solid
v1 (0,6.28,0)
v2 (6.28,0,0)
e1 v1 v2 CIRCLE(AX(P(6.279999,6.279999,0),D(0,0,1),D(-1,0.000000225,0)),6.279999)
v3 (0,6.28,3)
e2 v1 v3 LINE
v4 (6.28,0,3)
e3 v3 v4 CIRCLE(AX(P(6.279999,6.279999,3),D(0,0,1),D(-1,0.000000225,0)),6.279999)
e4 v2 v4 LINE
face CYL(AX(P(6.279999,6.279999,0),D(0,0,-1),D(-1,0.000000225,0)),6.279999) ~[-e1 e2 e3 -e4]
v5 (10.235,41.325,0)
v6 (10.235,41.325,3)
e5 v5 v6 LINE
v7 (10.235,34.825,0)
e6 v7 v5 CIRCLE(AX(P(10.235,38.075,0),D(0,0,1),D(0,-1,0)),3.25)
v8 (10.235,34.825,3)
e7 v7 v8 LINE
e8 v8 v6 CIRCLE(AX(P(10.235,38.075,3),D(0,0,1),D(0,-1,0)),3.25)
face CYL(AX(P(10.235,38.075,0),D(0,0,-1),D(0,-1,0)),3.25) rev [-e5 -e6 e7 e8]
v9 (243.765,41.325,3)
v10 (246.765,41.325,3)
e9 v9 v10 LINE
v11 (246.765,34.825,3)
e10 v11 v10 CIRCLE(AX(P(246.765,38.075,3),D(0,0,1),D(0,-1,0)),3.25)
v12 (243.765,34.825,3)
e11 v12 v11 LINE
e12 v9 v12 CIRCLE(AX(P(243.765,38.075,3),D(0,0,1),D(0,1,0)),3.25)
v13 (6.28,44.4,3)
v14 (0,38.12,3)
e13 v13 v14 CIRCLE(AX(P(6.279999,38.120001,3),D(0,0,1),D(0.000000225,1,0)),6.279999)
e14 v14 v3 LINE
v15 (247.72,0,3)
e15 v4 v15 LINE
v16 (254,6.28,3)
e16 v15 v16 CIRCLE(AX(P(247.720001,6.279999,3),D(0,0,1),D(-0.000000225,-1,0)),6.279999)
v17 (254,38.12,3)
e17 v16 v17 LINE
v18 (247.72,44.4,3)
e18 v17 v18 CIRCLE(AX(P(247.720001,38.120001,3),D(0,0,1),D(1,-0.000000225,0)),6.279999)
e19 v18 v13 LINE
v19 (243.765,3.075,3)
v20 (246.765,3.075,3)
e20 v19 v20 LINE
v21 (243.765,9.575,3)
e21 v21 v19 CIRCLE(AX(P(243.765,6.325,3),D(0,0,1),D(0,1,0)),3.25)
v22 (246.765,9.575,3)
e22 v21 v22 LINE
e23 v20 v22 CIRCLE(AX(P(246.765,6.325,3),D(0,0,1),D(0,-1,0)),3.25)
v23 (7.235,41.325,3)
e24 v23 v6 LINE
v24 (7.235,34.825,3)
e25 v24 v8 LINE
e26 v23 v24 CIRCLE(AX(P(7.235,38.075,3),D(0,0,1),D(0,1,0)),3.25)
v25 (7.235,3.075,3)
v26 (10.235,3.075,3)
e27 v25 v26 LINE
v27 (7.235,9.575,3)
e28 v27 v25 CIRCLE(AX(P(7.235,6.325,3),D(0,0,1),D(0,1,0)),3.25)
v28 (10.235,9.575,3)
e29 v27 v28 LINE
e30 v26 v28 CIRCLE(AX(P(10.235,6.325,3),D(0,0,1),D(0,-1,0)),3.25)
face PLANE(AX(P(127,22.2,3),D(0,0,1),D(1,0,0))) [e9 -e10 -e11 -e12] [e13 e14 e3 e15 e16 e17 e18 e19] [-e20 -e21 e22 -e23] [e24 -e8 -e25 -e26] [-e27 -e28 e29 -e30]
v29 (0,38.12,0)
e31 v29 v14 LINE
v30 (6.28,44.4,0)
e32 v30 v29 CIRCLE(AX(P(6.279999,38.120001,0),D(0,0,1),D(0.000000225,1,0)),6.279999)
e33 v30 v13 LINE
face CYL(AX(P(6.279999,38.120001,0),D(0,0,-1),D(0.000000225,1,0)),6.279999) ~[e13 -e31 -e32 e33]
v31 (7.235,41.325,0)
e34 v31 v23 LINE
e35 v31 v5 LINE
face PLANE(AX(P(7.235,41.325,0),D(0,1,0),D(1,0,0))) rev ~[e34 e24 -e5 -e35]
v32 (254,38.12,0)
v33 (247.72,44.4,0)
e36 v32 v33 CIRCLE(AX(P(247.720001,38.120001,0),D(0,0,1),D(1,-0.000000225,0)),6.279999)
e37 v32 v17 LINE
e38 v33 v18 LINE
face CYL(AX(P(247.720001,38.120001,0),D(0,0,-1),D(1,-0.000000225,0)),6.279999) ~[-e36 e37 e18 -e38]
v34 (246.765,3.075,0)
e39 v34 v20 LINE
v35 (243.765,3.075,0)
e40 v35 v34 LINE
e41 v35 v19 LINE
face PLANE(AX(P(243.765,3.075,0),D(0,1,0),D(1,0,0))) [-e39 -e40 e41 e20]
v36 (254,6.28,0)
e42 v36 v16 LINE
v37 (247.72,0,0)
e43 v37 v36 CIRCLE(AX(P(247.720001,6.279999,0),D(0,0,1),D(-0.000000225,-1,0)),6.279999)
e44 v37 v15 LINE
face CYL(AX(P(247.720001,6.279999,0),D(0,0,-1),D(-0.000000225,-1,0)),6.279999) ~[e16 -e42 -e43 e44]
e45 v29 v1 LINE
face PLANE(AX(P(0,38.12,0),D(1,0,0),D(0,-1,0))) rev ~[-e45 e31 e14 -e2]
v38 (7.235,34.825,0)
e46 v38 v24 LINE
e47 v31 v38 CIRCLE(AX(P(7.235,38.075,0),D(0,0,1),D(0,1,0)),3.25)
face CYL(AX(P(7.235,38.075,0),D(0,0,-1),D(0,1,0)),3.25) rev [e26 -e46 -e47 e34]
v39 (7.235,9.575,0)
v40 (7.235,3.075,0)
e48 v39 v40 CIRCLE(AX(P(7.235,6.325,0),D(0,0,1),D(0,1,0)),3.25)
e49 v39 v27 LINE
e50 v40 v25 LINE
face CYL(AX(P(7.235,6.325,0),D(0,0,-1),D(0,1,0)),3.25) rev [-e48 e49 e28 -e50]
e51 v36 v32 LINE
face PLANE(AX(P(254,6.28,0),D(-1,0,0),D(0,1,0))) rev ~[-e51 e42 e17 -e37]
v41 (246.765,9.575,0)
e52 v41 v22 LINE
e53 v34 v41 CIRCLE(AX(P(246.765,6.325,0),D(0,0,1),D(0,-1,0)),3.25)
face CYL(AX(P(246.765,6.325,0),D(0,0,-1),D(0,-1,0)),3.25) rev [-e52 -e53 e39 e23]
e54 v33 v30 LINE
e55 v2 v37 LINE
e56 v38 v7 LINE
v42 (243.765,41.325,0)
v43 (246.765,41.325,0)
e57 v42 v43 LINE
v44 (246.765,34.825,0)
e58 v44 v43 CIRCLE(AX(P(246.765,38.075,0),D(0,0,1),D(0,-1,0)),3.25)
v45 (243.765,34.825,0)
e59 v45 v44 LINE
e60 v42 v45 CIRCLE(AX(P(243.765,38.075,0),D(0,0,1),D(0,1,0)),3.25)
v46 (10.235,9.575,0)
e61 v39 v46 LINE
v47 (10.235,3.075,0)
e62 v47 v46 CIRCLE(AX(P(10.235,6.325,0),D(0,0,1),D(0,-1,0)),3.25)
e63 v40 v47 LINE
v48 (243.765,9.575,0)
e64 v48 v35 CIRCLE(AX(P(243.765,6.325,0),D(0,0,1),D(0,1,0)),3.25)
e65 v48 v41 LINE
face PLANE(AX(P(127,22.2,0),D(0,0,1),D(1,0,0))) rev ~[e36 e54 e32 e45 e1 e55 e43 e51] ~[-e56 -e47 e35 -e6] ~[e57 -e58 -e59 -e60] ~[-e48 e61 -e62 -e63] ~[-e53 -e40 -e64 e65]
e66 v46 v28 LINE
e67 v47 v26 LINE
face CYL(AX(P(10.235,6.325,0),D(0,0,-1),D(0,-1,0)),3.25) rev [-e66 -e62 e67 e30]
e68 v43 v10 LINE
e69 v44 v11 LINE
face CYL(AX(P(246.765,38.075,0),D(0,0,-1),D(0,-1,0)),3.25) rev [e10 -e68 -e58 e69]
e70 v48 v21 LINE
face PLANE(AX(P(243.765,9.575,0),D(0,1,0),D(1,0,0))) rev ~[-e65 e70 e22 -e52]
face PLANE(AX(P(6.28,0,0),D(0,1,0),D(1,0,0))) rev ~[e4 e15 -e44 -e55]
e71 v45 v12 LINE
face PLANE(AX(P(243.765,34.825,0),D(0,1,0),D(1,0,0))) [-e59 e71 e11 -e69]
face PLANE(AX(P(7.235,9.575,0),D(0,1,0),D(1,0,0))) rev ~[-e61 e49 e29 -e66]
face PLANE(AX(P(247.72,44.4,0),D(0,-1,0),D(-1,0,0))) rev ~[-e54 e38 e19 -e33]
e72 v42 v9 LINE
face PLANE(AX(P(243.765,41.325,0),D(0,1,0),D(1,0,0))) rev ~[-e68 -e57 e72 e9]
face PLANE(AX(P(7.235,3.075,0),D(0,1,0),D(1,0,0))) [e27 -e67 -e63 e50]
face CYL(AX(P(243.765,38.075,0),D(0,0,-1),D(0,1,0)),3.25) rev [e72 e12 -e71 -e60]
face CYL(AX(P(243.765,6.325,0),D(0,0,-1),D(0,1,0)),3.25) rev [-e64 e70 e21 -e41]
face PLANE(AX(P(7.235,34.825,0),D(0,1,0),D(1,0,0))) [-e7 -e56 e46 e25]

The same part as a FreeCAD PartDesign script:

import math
import FreeCAD as App
import Part
import Sketcher
from FreeCAD import Vector
Q = App.Units.Quantity

doc = App.newDocument("Part")
params = doc.addObject("Spreadsheet::Sheet", "Params")
for row, (alias, value) in enumerate([
    ("sketch1_width", "3 mm"),
    ("sketch1_radius", "6.279999 mm"),
    ("sketch1_radius2", "3.25 mm"),
    ("sketch1_height", "31.84 mm"),
    ("pad1_length", "3 mm"),
], start=1):
    params.set(f"A{row}", alias)
    params.set(f"B{row}", "=" + value)
    params.setAlias(f"B{row}", alias)

body = doc.addObject("PartDesign::Body", "Body")

# Sketch on XY plane
sketch1 = body.newObject("Sketcher::SketchObject", "Sketch")
sketch1.AttachmentSupport = (doc.getObject("XY_Plane"), [""])
sketch1.MapMode = "FlatFace"
sketch1.addGeometry(Part.LineSegment(Vector(6.3, 0, 0), Vector(247.7, 0, 0)), False)
sketch1.addGeometry(Part.ArcOfCircle(Part.Circle(Vector(247.7, 6.3, 0), Vector(0, 0, 1), 6.3), math.radians(-90), math.radians(0)), False)
sketch1.addGeometry(Part.LineSegment(Vector(254, 6.3, 0), Vector(254, 38.1, 0)), False)
sketch1.addGeometry(Part.ArcOfCircle(Part.Circle(Vector(247.7, 38.1, 0), Vector(0, 0, 1), 6.3), math.radians(0), math.radians(90)), False)
sketch1.addGeometry(Part.LineSegment(Vector(247.7, 44.4, 0), Vector(6.3, 44.4, 0)), False)
sketch1.addGeometry(Part.ArcOfCircle(Part.Circle(Vector(6.3, 38.1, 0), Vector(0, 0, 1), 6.3), math.radians(90), math.radians(180)), False)
sketch1.addGeometry(Part.LineSegment(Vector(0, 38.1, 0), Vector(0, 6.3, 0)), False)
sketch1.addGeometry(Part.ArcOfCircle(Part.Circle(Vector(6.3, 6.3, 0), Vector(0, 0, 1), 6.3), math.radians(180), math.radians(270)), False)
sketch1.addGeometry(Part.ArcOfCircle(Part.Circle(Vector(7.2, 6.3, 0), Vector(0, 0, 1), 3.2), math.radians(90), math.radians(270)), False)
sketch1.addGeometry(Part.LineSegment(Vector(7.2, 9.6, 0), Vector(10.2, 9.6, 0)), False)
sketch1.addGeometry(Part.ArcOfCircle(Part.Circle(Vector(10.2, 6.3, 0), Vector(0, 0, 1), 3.2), math.radians(-90), math.radians(90)), False)
sketch1.addGeometry(Part.LineSegment(Vector(10.2, 3.1, 0), Vector(7.2, 3.1, 0)), False)
sketch1.addGeometry(Part.ArcOfCircle(Part.Circle(Vector(243.8, 6.3, 0), Vector(0, 0, 1), 3.2), math.radians(90), math.radians(270)), False)
sketch1.addGeometry(Part.LineSegment(Vector(243.8, 9.6, 0), Vector(246.8, 9.6, 0)), False)
sketch1.addGeometry(Part.ArcOfCircle(Part.Circle(Vector(246.8, 6.3, 0), Vector(0, 0, 1), 3.2), math.radians(-90), math.radians(90)), False)
sketch1.addGeometry(Part.LineSegment(Vector(246.8, 3.1, 0), Vector(243.8, 3.1, 0)), False)
sketch1.addGeometry(Part.ArcOfCircle(Part.Circle(Vector(7.2, 38.1, 0), Vector(0, 0, 1), 3.2), math.radians(90), math.radians(270)), False)
sketch1.addGeometry(Part.LineSegment(Vector(7.2, 41.3, 0), Vector(10.2, 41.3, 0)), False)
sketch1.addGeometry(Part.ArcOfCircle(Part.Circle(Vector(10.2, 38.1, 0), Vector(0, 0, 1), 3.2), math.radians(-90), math.radians(90)), False)
sketch1.addGeometry(Part.LineSegment(Vector(10.2, 34.8, 0), Vector(7.2, 34.8, 0)), False)
sketch1.addGeometry(Part.ArcOfCircle(Part.Circle(Vector(243.8, 38.1, 0), Vector(0, 0, 1), 3.2), math.radians(90), math.radians(270)), False)
sketch1.addGeometry(Part.LineSegment(Vector(243.8, 41.3, 0), Vector(246.8, 41.3, 0)), False)
sketch1.addGeometry(Part.ArcOfCircle(Part.Circle(Vector(246.8, 38.1, 0), Vector(0, 0, 1), 3.2), math.radians(-90), math.radians(90)), False)
sketch1.addGeometry(Part.LineSegment(Vector(246.8, 34.8, 0), Vector(243.8, 34.8, 0)), False)
sketch1.addConstraint(Sketcher.Constraint("Tangent", 0, 2, 1, 1))
sketch1.addConstraint(Sketcher.Constraint("Tangent", 1, 2, 2, 1))
sketch1.addConstraint(Sketcher.Constraint("Tangent", 2, 2, 3, 1))
sketch1.addConstraint(Sketcher.Constraint("Tangent", 3, 2, 4, 1))
sketch1.addConstraint(Sketcher.Constraint("Tangent", 4, 2, 5, 1))
sketch1.addConstraint(Sketcher.Constraint("Tangent", 5, 2, 6, 1))
sketch1.addConstraint(Sketcher.Constraint("Tangent", 6, 2, 7, 1))
sketch1.addConstraint(Sketcher.Constraint("Tangent", 7, 2, 0, 1))
sketch1.addConstraint(Sketcher.Constraint("Tangent", 8, 1, 9, 1))
sketch1.addConstraint(Sketcher.Constraint("Tangent", 9, 2, 10, 2))
sketch1.addConstraint(Sketcher.Constraint("Tangent", 10, 1, 11, 1))
sketch1.addConstraint(Sketcher.Constraint("Tangent", 11, 2, 8, 2))
sketch1.addConstraint(Sketcher.Constraint("Tangent", 12, 1, 13, 1))
sketch1.addConstraint(Sketcher.Constraint("Tangent", 13, 2, 14, 2))
sketch1.addConstraint(Sketcher.Constraint("Tangent", 14, 1, 15, 1))
sketch1.addConstraint(Sketcher.Constraint("Tangent", 15, 2, 12, 2))
sketch1.addConstraint(Sketcher.Constraint("Tangent", 16, 1, 17, 1))
sketch1.addConstraint(Sketcher.Constraint("Tangent", 17, 2, 18, 2))
sketch1.addConstraint(Sketcher.Constraint("Tangent", 18, 1, 19, 1))
sketch1.addConstraint(Sketcher.Constraint("Tangent", 19, 2, 16, 2))
sketch1.addConstraint(Sketcher.Constraint("Tangent", 20, 1, 21, 1))
sketch1.addConstraint(Sketcher.Constraint("Tangent", 21, 2, 22, 2))
sketch1.addConstraint(Sketcher.Constraint("Tangent", 22, 1, 23, 1))
sketch1.addConstraint(Sketcher.Constraint("Tangent", 23, 2, 20, 2))
sketch1.addConstraint(Sketcher.Constraint("Horizontal", 0))
sketch1.addConstraint(Sketcher.Constraint("Vertical", 2))
sketch1.addConstraint(Sketcher.Constraint("Horizontal", 4))
sketch1.addConstraint(Sketcher.Constraint("Vertical", 6))
sketch1.addConstraint(Sketcher.Constraint("Horizontal", 9))
sketch1.addConstraint(Sketcher.Constraint("Horizontal", 11))
sketch1.addConstraint(Sketcher.Constraint("Horizontal", 13))
sketch1.addConstraint(Sketcher.Constraint("Horizontal", 15))
sketch1.addConstraint(Sketcher.Constraint("Horizontal", 17))
sketch1.addConstraint(Sketcher.Constraint("Horizontal", 19))
sketch1.addConstraint(Sketcher.Constraint("Horizontal", 21))
sketch1.addConstraint(Sketcher.Constraint("Horizontal", 23))
sketch1.addConstraint(Sketcher.Constraint("Equal", 1, 3))
sketch1.addConstraint(Sketcher.Constraint("Equal", 3, 5))
sketch1.addConstraint(Sketcher.Constraint("Equal", 5, 7))
sketch1.addConstraint(Sketcher.Constraint("Equal", 10, 12))
sketch1.addConstraint(Sketcher.Constraint("Equal", 14, 16))
sketch1.addConstraint(Sketcher.Constraint("Equal", 18, 20))
sketch1.addConstraint(Sketcher.Constraint("PointOnObject", 0, 2, -1))
sketch1.addConstraint(Sketcher.Constraint("PointOnObject", 5, 2, -2))
sketch1.addConstraint(Sketcher.Constraint("Horizontal", 10, 3, 12, 3))
sketch1.addConstraint(Sketcher.Constraint("Horizontal", 18, 3, 20, 3))
sketch1.addConstraint(Sketcher.Constraint("Vertical", 8, 3, 16, 3))
sketch1.addConstraint(Sketcher.Constraint("Vertical", 10, 3, 18, 3))
sketch1.addConstraint(Sketcher.Constraint("Vertical", 12, 3, 20, 3))
sketch1.addConstraint(Sketcher.Constraint("Vertical", 14, 3, 22, 3))
sketch1.addConstraint(Sketcher.Constraint("Equal", 11, 13))
sketch1.addConstraint(Sketcher.Constraint("DistanceX", 9, 1, 9, 2, Q("3 mm")))
sketch1.addConstraint(Sketcher.Constraint("Radius", 1, Q("6.279999 mm")))
sketch1.addConstraint(Sketcher.Constraint("Radius", 8, Q("3.25 mm")))
sketch1.addConstraint(Sketcher.Constraint("DistanceX", -1, 1, 1, 2, Q("254 mm")))
sketch1.addConstraint(Sketcher.Constraint("DistanceY", 2, 1, 2, 2, Q("31.84 mm")))
sketch1.addConstraint(Sketcher.Constraint("DistanceX", 10, 3, 12, 3, Q("233.53 mm")))
sketch1.addConstraint(Sketcher.Constraint("DistanceY", 8, 3, 16, 3, Q("31.75 mm")))
sketch1.addConstraint(Sketcher.Constraint("DistanceX", -1, 1, 8, 3, Q("7.235 mm")))
sketch1.addConstraint(Sketcher.Constraint("DistanceY", -1, 1, 8, 3, Q("6.325 mm")))
sketch1.setExpression("Constraints[51]", "Params.sketch1_width")
sketch1.setExpression("Constraints[52]", "Params.sketch1_radius")
sketch1.setExpression("Constraints[53]", "Params.sketch1_radius2")
sketch1.setExpression("Constraints[55]", "Params.sketch1_height")
pad1 = body.newObject("PartDesign::Pad", "Pad")
pad1.Profile = sketch1
pad1.setExpression("Length", "Params.pad1_length")

doc.recompute()
